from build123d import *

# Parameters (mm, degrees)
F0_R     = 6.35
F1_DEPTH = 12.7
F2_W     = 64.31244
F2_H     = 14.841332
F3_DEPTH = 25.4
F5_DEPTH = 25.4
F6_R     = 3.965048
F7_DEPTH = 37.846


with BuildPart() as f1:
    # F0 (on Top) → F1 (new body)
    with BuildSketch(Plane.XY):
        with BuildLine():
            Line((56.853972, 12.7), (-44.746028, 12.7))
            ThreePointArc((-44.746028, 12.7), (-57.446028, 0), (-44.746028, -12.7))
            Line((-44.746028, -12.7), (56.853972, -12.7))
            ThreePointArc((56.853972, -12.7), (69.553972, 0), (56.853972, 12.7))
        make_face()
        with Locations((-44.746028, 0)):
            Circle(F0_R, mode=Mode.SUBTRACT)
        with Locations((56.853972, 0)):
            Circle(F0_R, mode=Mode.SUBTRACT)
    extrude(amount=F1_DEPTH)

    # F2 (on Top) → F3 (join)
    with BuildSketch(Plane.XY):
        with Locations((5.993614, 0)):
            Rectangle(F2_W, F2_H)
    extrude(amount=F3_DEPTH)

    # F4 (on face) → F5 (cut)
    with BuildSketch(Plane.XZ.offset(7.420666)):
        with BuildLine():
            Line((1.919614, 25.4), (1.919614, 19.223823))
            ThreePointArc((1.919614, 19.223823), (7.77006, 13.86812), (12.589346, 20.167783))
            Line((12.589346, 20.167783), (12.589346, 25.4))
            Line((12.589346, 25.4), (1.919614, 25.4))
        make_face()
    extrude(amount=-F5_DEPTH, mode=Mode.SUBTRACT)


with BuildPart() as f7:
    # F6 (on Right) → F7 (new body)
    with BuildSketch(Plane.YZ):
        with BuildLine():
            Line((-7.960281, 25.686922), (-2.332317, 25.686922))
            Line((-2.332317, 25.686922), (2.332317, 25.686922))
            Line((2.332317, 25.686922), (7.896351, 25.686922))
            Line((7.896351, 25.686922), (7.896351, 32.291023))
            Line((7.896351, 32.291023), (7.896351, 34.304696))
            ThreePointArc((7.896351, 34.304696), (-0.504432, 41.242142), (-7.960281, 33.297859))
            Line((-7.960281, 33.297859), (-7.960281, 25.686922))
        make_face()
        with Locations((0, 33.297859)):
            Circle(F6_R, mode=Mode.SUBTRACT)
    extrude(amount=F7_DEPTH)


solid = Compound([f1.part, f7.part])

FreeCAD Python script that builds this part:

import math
import FreeCAD as App
import Part
import Sketcher
Q = App.Units.Quantity

doc = App.newDocument("Part")
body = doc.addObject("PartDesign::Body", "Body")

# Sketch on XY plane
sketch1 = doc.addObject("Sketcher::SketchObject", "Sketch")
body.addObject(sketch1)
sketch1.AttachmentSupport = (doc.XY_Plane, [""])
sketch1.MapMode = "FlatFace"
sketch1.addGeometry(Part.LineSegment(App.Vector(57, 13, 0), App.Vector(-45, 13, 0)), False)
sketch1.addGeometry(Part.ArcOfCircle(Part.Circle(App.Vector(-45, 0, 0), App.Vector(0, 0, 1), 13), math.radians(90), math.radians(270)), False)
sketch1.addGeometry(Part.LineSegment(App.Vector(-45, -13, 0), App.Vector(57, -13, 0)), False)
sketch1.addGeometry(Part.ArcOfCircle(Part.Circle(App.Vector(57, 0, 0), App.Vector(0, 0, 1), 13), math.radians(-90), math.radians(90)), False)
sketch1.addGeometry(Part.Circle(App.Vector(-45, 0, 0), App.Vector(0, 0, 1), 6), False)
sketch1.addGeometry(Part.Circle(App.Vector(57, 0, 0), App.Vector(0, 0, 1), 6), False)
sketch1.addConstraint(Sketcher.Constraint("Tangent", 0, 2, 1, 1))
sketch1.addConstraint(Sketcher.Constraint("Tangent", 1, 2, 2, 1))
sketch1.addConstraint(Sketcher.Constraint("Tangent", 2, 2, 3, 1))
sketch1.addConstraint(Sketcher.Constraint("Tangent", 3, 2, 0, 1))
sketch1.addConstraint(Sketcher.Constraint("Horizontal", 0))
sketch1.addConstraint(Sketcher.Constraint("Horizontal", 2))
sketch1.addConstraint(Sketcher.Constraint("Coincident", 4, 3, 1, 3))
sketch1.addConstraint(Sketcher.Constraint("Coincident", 5, 3, 3, 3))
sketch1.addConstraint(Sketcher.Constraint("Equal", 4, 5))
sketch1.addConstraint(Sketcher.Constraint("PointOnObject", 1, 3, -1))
sketch1.addConstraint(Sketcher.Constraint("Diameter", 4, Q("0.5 in")))
sketch1.addConstraint(Sketcher.Constraint("Radius", 1, Q("0.5 in")))
sketch1.addConstraint(Sketcher.Constraint("DistanceX", 0, 2, 0, 1, Q("4 in")))
sketch1.addConstraint(Sketcher.Constraint("DistanceX", 1, 3, -1, 1, 44.746028))
pad1 = doc.addObject("PartDesign::Pad", "Pad")
body.addObject(pad1)
pad1.Profile = sketch1
pad1.Length = Q("0.5 in")

# Sketch on XY plane
sketch2 = doc.addObject("Sketcher::SketchObject", "Sketch001")
body.addObject(sketch2)
sketch2.AttachmentSupport = (doc.XY_Plane, [""])
sketch2.MapMode = "FlatFace"
sketch2.addGeometry(Part.LineSegment(App.Vector(-26, 7, 0), App.Vector(-26, -7, 0)), False)
sketch2.addGeometry(Part.LineSegment(App.Vector(-26, -7, 0), App.Vector(38, -7, 0)), False)
sketch2.addGeometry(Part.LineSegment(App.Vector(38, -7, 0), App.Vector(38, 7, 0)), False)
sketch2.addGeometry(Part.LineSegment(App.Vector(38, 7, 0), App.Vector(-26, 7, 0)), False)
sketch2.addConstraint(Sketcher.Constraint("Coincident", 0, 2, 1, 1))
sketch2.addConstraint(Sketcher.Constraint("Coincident", 1, 2, 2, 1))
sketch2.addConstraint(Sketcher.Constraint("Coincident", 2, 2, 3, 1))
sketch2.addConstraint(Sketcher.Constraint("Coincident", 3, 2, 0, 1))
sketch2.addConstraint(Sketcher.Constraint("Vertical", 0))
sketch2.addConstraint(Sketcher.Constraint("Horizontal", 1))
sketch2.addConstraint(Sketcher.Constraint("Vertical", 2))
sketch2.addConstraint(Sketcher.Constraint("Horizontal", 3))
sketch2.addConstraint(Sketcher.Constraint("DistanceX", 1, 1, 1, 2, 64.31244))
sketch2.addConstraint(Sketcher.Constraint("DistanceY", 0, 2, 0, 1, 14.841332))
sketch2.addConstraint(Sketcher.Constraint("DistanceX", 0, 2, -1, 1, 26.162606))
sketch2.addConstraint(Sketcher.Constraint("DistanceY", 0, 2, -1, 1, 7.420666))
pad2 = doc.addObject("PartDesign::Pad", "Pad001")
body.addObject(pad2)
pad2.Profile = sketch2
pad2.Length = Q("1 in")

# Sketch on XZ plane
sketch3 = doc.addObject("Sketcher::SketchObject", "Sketch002")
body.addObject(sketch3)
sketch3.AttachmentSupport = (doc.XZ_Plane, [""])
sketch3.MapMode = "FlatFace"
sketch3.AttachmentOffset = App.Placement(App.Vector(0, 0, 7.420666), App.Rotation())
sketch3.addGeometry(Part.LineSegment(App.Vector(2, 25, 0), App.Vector(2, 19, 0)), False)
sketch3.addGeometry(Part.ArcOfCircle(Part.Circle(App.Vector(7, 19, 0), App.Vector(0, 0, 1), 5), math.radians(-180), math.radians(10)), False)
sketch3.addGeometry(Part.LineSegment(App.Vector(13, 20, 0), App.Vector(13, 25, 0)), False)
sketch3.addGeometry(Part.LineSegment(App.Vector(13, 25, 0), App.Vector(2, 25, 0)), False)
sketch3.addConstraint(Sketcher.Constraint("Tangent", 0, 2, 1, 1))
sketch3.addConstraint(Sketcher.Constraint("Coincident", 1, 2, 2, 1))
sketch3.addConstraint(Sketcher.Constraint("Coincident", 2, 2, 3, 1))
sketch3.addConstraint(Sketcher.Constraint("Coincident", 3, 2, 0, 1))
sketch3.addConstraint(Sketcher.Constraint("Vertical", 0))
sketch3.addConstraint(Sketcher.Constraint("Vertical", 2))
sketch3.addConstraint(Sketcher.Constraint("Horizontal", 3))
sketch3.addConstraint(Sketcher.Constraint("DistanceY", -1, 1, 2, 2, Q("1 in")))
sketch3.addConstraint(Sketcher.Constraint("Radius", 1, 5.376622))
sketch3.addConstraint(Sketcher.Constraint("DistanceX", 3, 2, 3, 1, 10.669732))
sketch3.addConstraint(Sketcher.Constraint("DistanceY", 0, 2, 0, 1, 6.176177))
sketch3.addConstraint(Sketcher.Constraint("DistanceX", -1, 1, 1, 3, 7.296236))
pocket1 = doc.addObject("PartDesign::Pocket", "Pocket")
body.addObject(pocket1)
pocket1.Profile = sketch3
pocket1.Length = Q("1 in")
body2 = doc.addObject("PartDesign::Body", "Body001")

# Sketch on YZ plane
sketch4 = doc.addObject("Sketcher::SketchObject", "Sketch003")
body2.addObject(sketch4)
sketch4.AttachmentSupport = (doc.getObject("YZ_Plane001"), [""])
sketch4.MapMode = "FlatFace"
sketch4.addGeometry(Part.LineSegment(App.Vector(-8, 25.7, 0), App.Vector(7.9, 25.7, 0)), False)
sketch4.addGeometry(Part.LineSegment(App.Vector(7.9, 25.7, 0), App.Vector(7.9, 34.3, 0)), False)
sketch4.addGeometry(Part.ArcOfCircle(Part.Circle(App.Vector(0, 33.3, 0), App.Vector(0, 0, 1), 8), math.radians(7), math.radians(180)), False)
sketch4.addGeometry(Part.LineSegment(App.Vector(-8, 33.3, 0), App.Vector(-8, 25.7, 0)), False)
sketch4.addGeometry(Part.Circle(App.Vector(0, 33.3, 0), App.Vector(0, 0, 1), 4), False)
sketch4.addConstraint(Sketcher.Constraint("Coincident", 0, 2, 1, 1))
sketch4.addConstraint(Sketcher.Constraint("Coincident", 1, 2, 2, 1))
sketch4.addConstraint(Sketcher.Constraint("Tangent", 2, 2, 3, 1))
sketch4.addConstraint(Sketcher.Constraint("Coincident", 3, 2, 0, 1))
sketch4.addConstraint(Sketcher.Constraint("Horizontal", 0))
sketch4.addConstraint(Sketcher.Constraint("Vertical", 1))
sketch4.addConstraint(Sketcher.Constraint("Vertical", 3))
sketch4.addConstraint(Sketcher.Constraint("Coincident", 4, 3, 2, 3))
sketch4.addConstraint(Sketcher.Constraint("PointOnObject", 2, 3, -2))
sketch4.addConstraint(Sketcher.Constraint("Radius", 2, 7.960281))
sketch4.addConstraint(Sketcher.Constraint("Diameter", 4, 7.930096))
sketch4.addConstraint(Sketcher.Constraint("DistanceX", 0, 1, 0, 2, 15.856632))
sketch4.addConstraint(Sketcher.Constraint("DistanceY", 1, 1, 1, 2, 8.617774))
sketch4.addConstraint(Sketcher.Constraint("DistanceY", -1, 1, 2, 3, 33.29786))
pad3 = doc.addObject("PartDesign::Pad", "Pad002")
body2.addObject(pad3)
pad3.Profile = sketch4
pad3.Length = Q("1.49 in")

doc.recompute()
